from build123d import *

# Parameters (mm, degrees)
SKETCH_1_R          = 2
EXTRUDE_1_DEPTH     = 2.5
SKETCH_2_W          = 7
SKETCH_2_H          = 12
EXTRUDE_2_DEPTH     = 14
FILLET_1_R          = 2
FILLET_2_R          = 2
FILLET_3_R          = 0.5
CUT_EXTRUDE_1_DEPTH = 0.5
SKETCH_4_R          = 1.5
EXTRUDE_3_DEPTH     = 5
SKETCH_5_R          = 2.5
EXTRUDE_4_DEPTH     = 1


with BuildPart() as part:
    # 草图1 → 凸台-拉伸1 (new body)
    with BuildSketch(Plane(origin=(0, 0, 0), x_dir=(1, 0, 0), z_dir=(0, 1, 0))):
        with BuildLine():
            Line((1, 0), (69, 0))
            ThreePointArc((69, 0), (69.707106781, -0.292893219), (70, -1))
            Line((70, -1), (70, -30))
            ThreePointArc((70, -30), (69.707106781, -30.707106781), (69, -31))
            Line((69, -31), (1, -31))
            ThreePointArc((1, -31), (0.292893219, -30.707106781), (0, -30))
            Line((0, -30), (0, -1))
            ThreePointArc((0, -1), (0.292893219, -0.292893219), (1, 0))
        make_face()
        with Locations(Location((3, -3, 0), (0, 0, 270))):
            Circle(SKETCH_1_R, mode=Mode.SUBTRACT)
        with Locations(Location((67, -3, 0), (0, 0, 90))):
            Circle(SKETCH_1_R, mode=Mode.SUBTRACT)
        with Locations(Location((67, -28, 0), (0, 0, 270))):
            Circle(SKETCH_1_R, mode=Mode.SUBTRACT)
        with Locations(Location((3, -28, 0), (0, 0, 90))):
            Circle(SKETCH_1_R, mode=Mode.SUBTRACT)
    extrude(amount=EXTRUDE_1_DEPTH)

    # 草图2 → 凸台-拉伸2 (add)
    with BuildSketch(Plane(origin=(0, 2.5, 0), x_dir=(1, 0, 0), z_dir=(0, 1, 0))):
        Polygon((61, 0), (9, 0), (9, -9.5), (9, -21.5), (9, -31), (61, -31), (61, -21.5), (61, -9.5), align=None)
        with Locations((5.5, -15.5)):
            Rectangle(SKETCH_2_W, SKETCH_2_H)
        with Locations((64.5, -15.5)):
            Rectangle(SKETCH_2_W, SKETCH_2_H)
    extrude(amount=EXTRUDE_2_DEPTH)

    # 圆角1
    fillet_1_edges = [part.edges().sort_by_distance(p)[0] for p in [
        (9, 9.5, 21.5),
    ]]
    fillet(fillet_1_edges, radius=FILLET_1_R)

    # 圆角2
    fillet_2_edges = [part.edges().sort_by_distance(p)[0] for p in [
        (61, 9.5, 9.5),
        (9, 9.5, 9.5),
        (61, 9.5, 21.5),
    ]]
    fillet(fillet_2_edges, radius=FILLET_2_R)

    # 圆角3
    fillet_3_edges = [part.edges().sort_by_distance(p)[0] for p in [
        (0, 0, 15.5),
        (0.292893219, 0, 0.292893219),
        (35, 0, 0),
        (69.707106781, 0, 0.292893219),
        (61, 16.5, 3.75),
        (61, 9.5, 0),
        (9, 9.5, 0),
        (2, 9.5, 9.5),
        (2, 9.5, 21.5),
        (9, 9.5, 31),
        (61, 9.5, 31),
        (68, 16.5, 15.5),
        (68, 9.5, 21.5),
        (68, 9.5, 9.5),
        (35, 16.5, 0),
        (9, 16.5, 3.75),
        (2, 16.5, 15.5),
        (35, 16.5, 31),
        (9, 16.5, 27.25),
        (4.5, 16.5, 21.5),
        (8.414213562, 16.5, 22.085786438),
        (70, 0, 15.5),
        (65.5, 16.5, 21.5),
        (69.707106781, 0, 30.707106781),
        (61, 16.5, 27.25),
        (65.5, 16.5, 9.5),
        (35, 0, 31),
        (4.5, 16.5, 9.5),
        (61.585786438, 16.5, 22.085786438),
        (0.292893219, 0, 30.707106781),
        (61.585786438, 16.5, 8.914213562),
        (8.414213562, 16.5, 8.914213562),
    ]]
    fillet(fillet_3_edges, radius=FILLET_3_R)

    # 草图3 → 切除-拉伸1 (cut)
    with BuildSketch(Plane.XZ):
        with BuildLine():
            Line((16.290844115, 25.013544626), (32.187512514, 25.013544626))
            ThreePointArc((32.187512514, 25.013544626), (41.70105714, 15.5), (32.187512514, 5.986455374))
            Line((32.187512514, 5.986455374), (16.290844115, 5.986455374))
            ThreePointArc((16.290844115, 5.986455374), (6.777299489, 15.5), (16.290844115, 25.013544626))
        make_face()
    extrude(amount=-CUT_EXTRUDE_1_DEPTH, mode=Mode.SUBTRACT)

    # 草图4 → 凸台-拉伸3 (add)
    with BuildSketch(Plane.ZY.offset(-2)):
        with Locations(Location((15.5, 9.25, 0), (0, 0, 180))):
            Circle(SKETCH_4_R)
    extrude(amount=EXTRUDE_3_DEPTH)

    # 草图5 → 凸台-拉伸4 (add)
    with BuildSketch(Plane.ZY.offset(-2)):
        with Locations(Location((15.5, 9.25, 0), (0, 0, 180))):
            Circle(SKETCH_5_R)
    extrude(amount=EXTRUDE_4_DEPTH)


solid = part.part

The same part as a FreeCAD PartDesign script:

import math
import FreeCAD as App
import Part
import Sketcher
Q = App.Units.Quantity


def edges_at(feature, points):
    """Names of the edges that pass closest to the given points."""
    edges = feature.Shape.Edges
    near = lambda p: min(range(len(edges)), key=lambda i: edges[i].distToShape(Part.Vertex(*p))[0])
    return sorted({f"Edge{near(p) + 1}" for p in points})


def add_polygon(sketch, points):
    """Adds a closed chain of lines whose ends are joined by coincident constraints."""
    first, n = sketch.GeometryCount, len(points)
    for a, b in zip(points, points[1:] + points[:1]):
        sketch.addGeometry(Part.LineSegment(App.Vector(*a, 0), App.Vector(*b, 0)), False)
    for i in range(n):
        sketch.addConstraint(Sketcher.Constraint("Coincident", first + i, 2, first + (i + 1) % n, 1))

doc = App.newDocument("Part")
body = doc.addObject("PartDesign::Body", "Body")

sketch1 = body.newObject("Sketcher::SketchObject", "Sketch")
sketch1.AttachmentSupport = (doc.getObject("XZ_Plane"), [""])
sketch1.MapMode = "FlatFace"
sketch1.addGeometry(Part.LineSegment(App.Vector(69, 0, 0), App.Vector(1, 0, 0)), False)
sketch1.addGeometry(Part.ArcOfCircle(Part.Circle(App.Vector(1, 1, 0), App.Vector(0, 0, 1), 1), math.radians(-180), math.radians(-90)), False)
sketch1.addGeometry(Part.LineSegment(App.Vector(0, 1, 0), App.Vector(0, 30, 0)), False)
sketch1.addGeometry(Part.ArcOfCircle(Part.Circle(App.Vector(1, 30, 0), App.Vector(0, 0, 1), 1), math.radians(90), math.radians(180)), False)
sketch1.addGeometry(Part.LineSegment(App.Vector(1, 31, 0), App.Vector(69, 31, 0)), False)
sketch1.addGeometry(Part.ArcOfCircle(Part.Circle(App.Vector(69, 30, 0), App.Vector(0, 0, 1), 1), math.radians(0), math.radians(90)), False)
sketch1.addGeometry(Part.LineSegment(App.Vector(70, 30, 0), App.Vector(70, 1, 0)), False)
sketch1.addGeometry(Part.ArcOfCircle(Part.Circle(App.Vector(69, 1, 0), App.Vector(0, 0, 1), 1), math.radians(-90), math.radians(0)), False)
sketch1.addGeometry(Part.Circle(App.Vector(67, 28, 0), App.Vector(0, 0, 1), 2), False)
sketch1.addGeometry(Part.Circle(App.Vector(3, 28, 0), App.Vector(0, 0, 1), 2), False)
sketch1.addGeometry(Part.Circle(App.Vector(67, 3, 0), App.Vector(0, 0, 1), 2), False)
sketch1.addGeometry(Part.Circle(App.Vector(3, 3, 0), App.Vector(0, 0, 1), 2), False)
sketch1.addConstraint(Sketcher.Constraint("Tangent", 0, 2, 1, 2))
sketch1.addConstraint(Sketcher.Constraint("Tangent", 1, 1, 2, 1))
sketch1.addConstraint(Sketcher.Constraint("Tangent", 2, 2, 3, 2))
sketch1.addConstraint(Sketcher.Constraint("Tangent", 3, 1, 4, 1))
sketch1.addConstraint(Sketcher.Constraint("Tangent", 4, 2, 5, 2))
sketch1.addConstraint(Sketcher.Constraint("Tangent", 5, 1, 6, 1))
sketch1.addConstraint(Sketcher.Constraint("Tangent", 6, 2, 7, 2))
sketch1.addConstraint(Sketcher.Constraint("Tangent", 7, 1, 0, 1))
sketch1.addConstraint(Sketcher.Constraint("Horizontal", 0))
sketch1.addConstraint(Sketcher.Constraint("Vertical", 2))
sketch1.addConstraint(Sketcher.Constraint("Horizontal", 4))
sketch1.addConstraint(Sketcher.Constraint("Vertical", 6))
sketch1.addConstraint(Sketcher.Constraint("Equal", 1, 3))
sketch1.addConstraint(Sketcher.Constraint("Equal", 3, 5))
sketch1.addConstraint(Sketcher.Constraint("Equal", 5, 7))
sketch1.addConstraint(Sketcher.Constraint("Equal", 8, 9))
sketch1.addConstraint(Sketcher.Constraint("Equal", 9, 10))
sketch1.addConstraint(Sketcher.Constraint("Equal", 10, 11))
sketch1.addConstraint(Sketcher.Constraint("PointOnObject", 0, 2, -1))
sketch1.addConstraint(Sketcher.Constraint("PointOnObject", 1, 1, -2))
sketch1.addConstraint(Sketcher.Constraint("Horizontal", 8, 3, 9, 3))
sketch1.addConstraint(Sketcher.Constraint("Horizontal", 10, 3, 11, 3))
sketch1.addConstraint(Sketcher.Constraint("Vertical", 8, 3, 10, 3))
sketch1.addConstraint(Sketcher.Constraint("Vertical", 9, 3, 11, 3))
sketch1.addConstraint(Sketcher.Constraint("Diameter", 8, Q("4 mm")))
sketch1.addConstraint(Sketcher.Constraint("Radius", 1, Q("1 mm")))
sketch1.addConstraint(Sketcher.Constraint("DistanceX", 0, 2, 0, 1, Q("68 mm")))
sketch1.addConstraint(Sketcher.Constraint("DistanceY", 2, 1, 2, 2, Q("29 mm")))
sketch1.addConstraint(Sketcher.Constraint("DistanceX", -1, 1, 8, 3, Q("67 mm")))
sketch1.addConstraint(Sketcher.Constraint("DistanceY", -1, 1, 8, 3, Q("28 mm")))
sketch1.addConstraint(Sketcher.Constraint("DistanceX", -1, 1, 9, 3, Q("3 mm")))
sketch1.addConstraint(Sketcher.Constraint("DistanceY", -1, 1, 10, 3, Q("3 mm")))
pad1 = body.newObject("PartDesign::Pad", "Pad")
pad1.Profile = sketch1
pad1.Length = 2.5
pad1.Reversed = True

sketch2 = body.newObject("Sketcher::SketchObject", "Sketch001")
sketch2.AttachmentSupport = (doc.getObject("XZ_Plane"), [""])
sketch2.MapMode = "FlatFace"
sketch2.AttachmentOffset = App.Placement(App.Vector(0, 0, -2.5), App.Rotation())
add_polygon(sketch2, [(61, 0), (9, 0), (9, 10), (2, 10), (2, 22), (9, 22), (9, 31), (61, 31), (61, 22), (68, 22), (68, 10), (61, 10)])
sketch2.addConstraint(Sketcher.Constraint("Horizontal", 0))
sketch2.addConstraint(Sketcher.Constraint("Vertical", 1))
sketch2.addConstraint(Sketcher.Constraint("Horizontal", 2))
sketch2.addConstraint(Sketcher.Constraint("Vertical", 3))
sketch2.addConstraint(Sketcher.Constraint("Horizontal", 4))
sketch2.addConstraint(Sketcher.Constraint("Vertical", 5))
sketch2.addConstraint(Sketcher.Constraint("Horizontal", 6))
sketch2.addConstraint(Sketcher.Constraint("Vertical", 7))
sketch2.addConstraint(Sketcher.Constraint("Horizontal", 8))
sketch2.addConstraint(Sketcher.Constraint("Vertical", 9))
sketch2.addConstraint(Sketcher.Constraint("Horizontal", 10))
sketch2.addConstraint(Sketcher.Constraint("Vertical", 11))
sketch2.addConstraint(Sketcher.Constraint("PointOnObject", 0, 2, -1))
sketch2.addConstraint(Sketcher.Constraint("Horizontal", 4, 2, 7, 2))
sketch2.addConstraint(Sketcher.Constraint("Horizontal", 2, 2, 9, 2))
sketch2.addConstraint(Sketcher.Constraint("Vertical", 1, 2, 4, 2))
sketch2.addConstraint(Sketcher.Constraint("Vertical", 7, 2, 10, 2))
sketch2.addConstraint(Sketcher.Constraint("Equal", 4, 8))
sketch2.addConstraint(Sketcher.Constraint("Equal", 1, 5))
sketch2.addConstraint(Sketcher.Constraint("DistanceX", 0, 2, 0, 1, Q("52 mm")))
sketch2.addConstraint(Sketcher.Constraint("DistanceX", 2, 2, 2, 1, Q("7 mm")))
sketch2.addConstraint(Sketcher.Constraint("DistanceY", 3, 1, 3, 2, Q("12 mm")))
sketch2.addConstraint(Sketcher.Constraint("DistanceY", 1, 1, 1, 2, Q("9.5 mm")))
sketch2.addConstraint(Sketcher.Constraint("DistanceX", -1, 1, 0, 2, Q("9 mm")))
pad2 = body.newObject("PartDesign::Pad", "Pad001")
pad2.Profile = sketch2
pad2.Length = 14
pad2.Reversed = True
doc.recompute()

fillet = body.newObject("PartDesign::Fillet", "Fillet")
fillet.Base = (pad2, edges_at(pad2, [(9, 9.5, 21.5)]))
fillet.Radius = 2
doc.recompute()

fillet2 = body.newObject("PartDesign::Fillet", "Fillet001")
fillet2.Base = (fillet, edges_at(fillet, [(61, 9.5, 9.5), (9, 9.5, 9.5), (61, 9.5, 21.5)]))
fillet2.Radius = 2
doc.recompute()

fillet3 = body.newObject("PartDesign::Fillet", "Fillet002")
fillet3.Base = (fillet2, edges_at(fillet2, [
    (0, 0, 15.5),
    (0.293, 0, 0.293),
    (35, 0, 0),
    (69.707, 0, 0.293),
    (61, 16.5, 3.75),
    (61, 9.5, 0),
    (9, 9.5, 0),
    (2, 9.5, 9.5),
    (2, 9.5, 21.5),
    (9, 9.5, 31),
    (61, 9.5, 31),
    (68, 16.5, 15.5),
    (68, 9.5, 21.5),
    (68, 9.5, 9.5),
    (35, 16.5, 0),
    (9, 16.5, 3.75),
    (2, 16.5, 15.5),
    (35, 16.5, 31),
    (9, 16.5, 27.25),
    (4.5, 16.5, 21.5),
    (8.414, 16.5, 22.086),
    (70, 0, 15.5),
    (65.5, 16.5, 21.5),
    (69.707, 0, 30.707),
    (61, 16.5, 27.25),
    (65.5, 16.5, 9.5),
    (35, 0, 31),
    (4.5, 16.5, 9.5),
    (61.586, 16.5, 22.086),
    (0.293, 0, 30.707),
    (61.586, 16.5, 8.914),
    (8.414, 16.5, 8.914),
]))
fillet3.Radius = 0.5

sketch3 = body.newObject("Sketcher::SketchObject", "Sketch002")
sketch3.AttachmentSupport = (doc.getObject("XZ_Plane"), [""])
sketch3.MapMode = "FlatFace"
sketch3.addGeometry(Part.LineSegment(App.Vector(32, 25, 0), App.Vector(16, 25, 0)), False)
sketch3.addGeometry(Part.ArcOfCircle(Part.Circle(App.Vector(16, 16, 0), App.Vector(0, 0, 1), 10), math.radians(90), math.radians(270)), False)
sketch3.addGeometry(Part.LineSegment(App.Vector(16, 6, 0), App.Vector(32, 6, 0)), False)
sketch3.addGeometry(Part.ArcOfCircle(Part.Circle(App.Vector(32, 16, 0), App.Vector(0, 0, 1), 10), math.radians(-90), math.radians(90)), False)
sketch3.addConstraint(Sketcher.Constraint("Tangent", 0, 2, 1, 1))
sketch3.addConstraint(Sketcher.Constraint("Tangent", 1, 2, 2, 1))
sketch3.addConstraint(Sketcher.Constraint("Tangent", 2, 2, 3, 1))
sketch3.addConstraint(Sketcher.Constraint("Tangent", 3, 2, 0, 1))
sketch3.addConstraint(Sketcher.Constraint("Horizontal", 0))
sketch3.addConstraint(Sketcher.Constraint("Horizontal", 2))
sketch3.addConstraint(Sketcher.Constraint("DistanceY", -1, 1, 1, 3, Q("15.5 mm")))
sketch3.addConstraint(Sketcher.Constraint("Radius", 1, Q("9.513545 mm")))
sketch3.addConstraint(Sketcher.Constraint("DistanceX", 0, 2, 0, 1, Q("15.896668 mm")))
sketch3.addConstraint(Sketcher.Constraint("DistanceX", -1, 1, 1, 3, Q("16.290844 mm")))
pocket1 = body.newObject("PartDesign::Pocket", "Pocket")
pocket1.Profile = sketch3
pocket1.Length = 0.5

sketch4 = body.newObject("Sketcher::SketchObject", "Sketch003")
sketch4.AttachmentSupport = (doc.getObject("YZ_Plane"), [""])
sketch4.MapMode = "FlatFace"
sketch4.AttachmentOffset = App.Placement(App.Vector(0, 0, 2), App.Rotation())
sketch4.addGeometry(Part.Circle(App.Vector(9.2, 15.5, 0), App.Vector(0, 0, 1), 1.5), False)
sketch4.addConstraint(Sketcher.Constraint("Diameter", 0, Q("3 mm")))
sketch4.addConstraint(Sketcher.Constraint("DistanceY", -1, 1, 0, 3, Q("15.5 mm")))
sketch4.addConstraint(Sketcher.Constraint("DistanceX", -1, 1, 0, 3, Q("9.25 mm")))
pad3 = body.newObject("PartDesign::Pad", "Pad002")
pad3.Profile = sketch4
pad3.Length = 5
pad3.Reversed = True

sketch5 = body.newObject("Sketcher::SketchObject", "Sketch004")
sketch5.AttachmentSupport = (doc.getObject("YZ_Plane"), [""])
sketch5.MapMode = "FlatFace"
sketch5.AttachmentOffset = App.Placement(App.Vector(0, 0, 2), App.Rotation())
sketch5.addGeometry(Part.Circle(App.Vector(9.2, 15.5, 0), App.Vector(0, 0, 1), 2.5), False)
sketch5.addConstraint(Sketcher.Constraint("Diameter", 0, Q("5 mm")))
sketch5.addConstraint(Sketcher.Constraint("DistanceY", -1, 1, 0, 3, Q("15.5 mm")))
sketch5.addConstraint(Sketcher.Constraint("DistanceX", -1, 1, 0, 3, Q("9.25 mm")))
pad4 = body.newObject("PartDesign::Pad", "Pad003")
pad4.Profile = sketch5
pad4.Length = 1
pad4.Reversed = True

doc.recompute()
